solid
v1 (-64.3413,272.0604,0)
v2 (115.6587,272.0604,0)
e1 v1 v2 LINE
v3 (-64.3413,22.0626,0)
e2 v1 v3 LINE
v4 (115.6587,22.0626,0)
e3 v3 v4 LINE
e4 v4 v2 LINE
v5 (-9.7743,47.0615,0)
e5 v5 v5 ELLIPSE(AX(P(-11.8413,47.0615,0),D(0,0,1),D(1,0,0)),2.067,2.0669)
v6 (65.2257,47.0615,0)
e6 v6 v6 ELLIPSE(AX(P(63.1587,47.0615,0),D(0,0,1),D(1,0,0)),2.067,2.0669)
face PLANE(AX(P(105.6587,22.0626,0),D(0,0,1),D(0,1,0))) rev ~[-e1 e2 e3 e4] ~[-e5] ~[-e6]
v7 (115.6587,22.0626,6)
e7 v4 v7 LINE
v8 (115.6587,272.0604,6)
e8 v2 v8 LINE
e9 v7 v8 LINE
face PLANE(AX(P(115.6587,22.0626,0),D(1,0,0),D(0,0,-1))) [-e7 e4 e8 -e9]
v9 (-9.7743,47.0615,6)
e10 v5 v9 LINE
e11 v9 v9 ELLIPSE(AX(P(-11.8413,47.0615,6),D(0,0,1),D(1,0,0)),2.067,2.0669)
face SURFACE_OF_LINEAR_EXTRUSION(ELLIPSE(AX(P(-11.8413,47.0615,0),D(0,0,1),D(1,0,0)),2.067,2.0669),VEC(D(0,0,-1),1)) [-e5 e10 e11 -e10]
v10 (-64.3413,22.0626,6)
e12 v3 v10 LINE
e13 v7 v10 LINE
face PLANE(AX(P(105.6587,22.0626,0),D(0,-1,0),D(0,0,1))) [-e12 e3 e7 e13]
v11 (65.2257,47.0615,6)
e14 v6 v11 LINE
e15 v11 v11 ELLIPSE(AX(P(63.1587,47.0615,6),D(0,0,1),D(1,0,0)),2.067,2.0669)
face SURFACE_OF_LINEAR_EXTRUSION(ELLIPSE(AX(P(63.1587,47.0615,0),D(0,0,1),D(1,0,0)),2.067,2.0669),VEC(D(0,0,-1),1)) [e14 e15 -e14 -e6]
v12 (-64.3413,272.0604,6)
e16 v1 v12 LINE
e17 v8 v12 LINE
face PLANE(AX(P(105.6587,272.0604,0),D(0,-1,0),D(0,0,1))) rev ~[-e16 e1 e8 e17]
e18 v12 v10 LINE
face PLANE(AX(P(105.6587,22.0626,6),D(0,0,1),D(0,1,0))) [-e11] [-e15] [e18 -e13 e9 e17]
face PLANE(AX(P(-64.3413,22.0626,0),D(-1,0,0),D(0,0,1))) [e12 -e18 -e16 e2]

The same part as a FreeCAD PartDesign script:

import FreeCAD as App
import Part
import Sketcher
from FreeCAD import Vector


def add_polygon(sketch, points):
    """Adds a closed chain of lines whose ends are joined by coincident constraints."""
    first, n = sketch.GeometryCount, len(points)
    for a, b in zip(points, points[1:] + points[:1]):
        sketch.addGeometry(Part.LineSegment(App.Vector(*a, 0), App.Vector(*b, 0)), False)
    for i in range(n):
        sketch.addConstraint(Sketcher.Constraint("Coincident", first + i, 2, first + (i + 1) % n, 1))

doc = App.newDocument("Part")
params = doc.addObject("Spreadsheet::Sheet", "Params")
for row, (alias, value) in enumerate([
    ("sketch1_width", "160 mm"),
    ("pad1_length", "6 mm"),
    ("sketch2_height", "6 mm"),
    ("pad2_length", "10 mm"),
    ("sketch3_height", "6 mm"),
    ("pad3_length", "10 mm"),
], start=1):
    params.set(f"A{row}", alias)
    params.set(f"B{row}", "=" + value)
    params.setAlias(f"B{row}", alias)

body = doc.addObject("PartDesign::Body", "Body")

# Sketch on XY plane
sketch1 = body.newObject("Sketcher::SketchObject", "Sketch")
sketch1.AttachmentSupport = (doc.getObject("XY_Plane"), [""])
sketch1.MapMode = "FlatFace"
add_polygon(sketch1, [(105.6587, 22.0626), (105.6587, 272.0604), (-54.3413, 272.0604), (-54.3413, 22.0626)])  # lines 0-3
sketch1.addGeometry(Part.Ellipse(Vector(-9.7743, 47.0615, 0), Vector(-11.8413, 49.1284, 0), Vector(-11.8413, 47.0615, 0)), False)  # 4
sketch1.addGeometry(Part.Ellipse(Vector(65.2257, 47.0615, 0), Vector(63.1587, 49.1284, 0), Vector(63.1587, 47.0615, 0)), False)  # 5
sketch1.addConstraint([
    Sketcher.Constraint("Block", 4),
    Sketcher.Constraint("Block", 5),
    Sketcher.Constraint("Vertical", 0),
    Sketcher.Constraint("Horizontal", 1),
    Sketcher.Constraint("Vertical", 2),
    Sketcher.Constraint("Horizontal", 3),
    Sketcher.Constraint("DistanceX", 1, 2, 1, 1, 160.0),
    Sketcher.Constraint("DistanceY", 0, 1, 0, 2, 249.9978),
    Sketcher.Constraint("DistanceX", -1, 1, 0, 2, 105.6587),
    Sketcher.Constraint("DistanceY", -1, 1, 0, 2, 272.0604),
])
sketch1.setExpression("Constraints[10]", "Params.sketch1_width")
pad1 = body.newObject("PartDesign::Pad", "Pad")
pad1.Profile = sketch1
pad1.setExpression("Length", "Params.pad1_length")

# Sketch on YZ plane
sketch2 = body.newObject("Sketcher::SketchObject", "Sketch001")
sketch2.AttachmentSupport = (doc.getObject("YZ_Plane"), [""])
sketch2.MapMode = "FlatFace"
sketch2.AttachmentOffset = App.Placement(Vector(0, 0, -54.3413), App.Rotation())
add_polygon(sketch2, [(272, 6), (272, 0), (22, 0), (22, 6)])  # lines 0-3
sketch2.addConstraint([
    Sketcher.Constraint("Vertical", 0),
    Sketcher.Constraint("Horizontal", 1),
    Sketcher.Constraint("Vertical", 2),
    Sketcher.Constraint("Horizontal", 3),
    Sketcher.Constraint("PointOnObject", 0, 2, -1),
    Sketcher.Constraint("DistanceY", 0, 2, 0, 1, 6.0),
    Sketcher.Constraint("DistanceX", 1, 2, 1, 1, 249.9978),
    Sketcher.Constraint("DistanceX", -1, 1, 0, 2, 272.0604),
])
sketch2.setExpression("Constraints[9]", "Params.sketch2_height")
pad2 = body.newObject("PartDesign::Pad", "Pad001")
pad2.Profile = sketch2
pad2.setExpression("Length", "Params.pad2_length")
pad2.Reversed = True

# Sketch on YZ plane
sketch3 = body.newObject("Sketcher::SketchObject", "Sketch002")
sketch3.AttachmentSupport = (doc.getObject("YZ_Plane"), [""])
sketch3.MapMode = "FlatFace"
sketch3.AttachmentOffset = App.Placement(Vector(0, 0, 105.6587), App.Rotation())
add_polygon(sketch3, [(22, 6), (22, 0), (272, 0), (272, 6)])  # lines 0-3
sketch3.addConstraint([
    Sketcher.Constraint("Vertical", 0),
    Sketcher.Constraint("Horizontal", 1),
    Sketcher.Constraint("Vertical", 2),
    Sketcher.Constraint("Horizontal", 3),
    Sketcher.Constraint("PointOnObject", 0, 2, -1),
    Sketcher.Constraint("DistanceY", 0, 2, 0, 1, 6.0),
    Sketcher.Constraint("DistanceX", 1, 1, 1, 2, 249.9978),
    Sketcher.Constraint("DistanceX", -1, 1, 0, 2, 22.0626),
])
sketch3.setExpression("Constraints[9]", "Params.sketch3_height")
pad3 = body.newObject("PartDesign::Pad", "Pad002")
pad3.Profile = sketch3
pad3.setExpression("Length", "Params.pad3_length")

doc.recompute()
